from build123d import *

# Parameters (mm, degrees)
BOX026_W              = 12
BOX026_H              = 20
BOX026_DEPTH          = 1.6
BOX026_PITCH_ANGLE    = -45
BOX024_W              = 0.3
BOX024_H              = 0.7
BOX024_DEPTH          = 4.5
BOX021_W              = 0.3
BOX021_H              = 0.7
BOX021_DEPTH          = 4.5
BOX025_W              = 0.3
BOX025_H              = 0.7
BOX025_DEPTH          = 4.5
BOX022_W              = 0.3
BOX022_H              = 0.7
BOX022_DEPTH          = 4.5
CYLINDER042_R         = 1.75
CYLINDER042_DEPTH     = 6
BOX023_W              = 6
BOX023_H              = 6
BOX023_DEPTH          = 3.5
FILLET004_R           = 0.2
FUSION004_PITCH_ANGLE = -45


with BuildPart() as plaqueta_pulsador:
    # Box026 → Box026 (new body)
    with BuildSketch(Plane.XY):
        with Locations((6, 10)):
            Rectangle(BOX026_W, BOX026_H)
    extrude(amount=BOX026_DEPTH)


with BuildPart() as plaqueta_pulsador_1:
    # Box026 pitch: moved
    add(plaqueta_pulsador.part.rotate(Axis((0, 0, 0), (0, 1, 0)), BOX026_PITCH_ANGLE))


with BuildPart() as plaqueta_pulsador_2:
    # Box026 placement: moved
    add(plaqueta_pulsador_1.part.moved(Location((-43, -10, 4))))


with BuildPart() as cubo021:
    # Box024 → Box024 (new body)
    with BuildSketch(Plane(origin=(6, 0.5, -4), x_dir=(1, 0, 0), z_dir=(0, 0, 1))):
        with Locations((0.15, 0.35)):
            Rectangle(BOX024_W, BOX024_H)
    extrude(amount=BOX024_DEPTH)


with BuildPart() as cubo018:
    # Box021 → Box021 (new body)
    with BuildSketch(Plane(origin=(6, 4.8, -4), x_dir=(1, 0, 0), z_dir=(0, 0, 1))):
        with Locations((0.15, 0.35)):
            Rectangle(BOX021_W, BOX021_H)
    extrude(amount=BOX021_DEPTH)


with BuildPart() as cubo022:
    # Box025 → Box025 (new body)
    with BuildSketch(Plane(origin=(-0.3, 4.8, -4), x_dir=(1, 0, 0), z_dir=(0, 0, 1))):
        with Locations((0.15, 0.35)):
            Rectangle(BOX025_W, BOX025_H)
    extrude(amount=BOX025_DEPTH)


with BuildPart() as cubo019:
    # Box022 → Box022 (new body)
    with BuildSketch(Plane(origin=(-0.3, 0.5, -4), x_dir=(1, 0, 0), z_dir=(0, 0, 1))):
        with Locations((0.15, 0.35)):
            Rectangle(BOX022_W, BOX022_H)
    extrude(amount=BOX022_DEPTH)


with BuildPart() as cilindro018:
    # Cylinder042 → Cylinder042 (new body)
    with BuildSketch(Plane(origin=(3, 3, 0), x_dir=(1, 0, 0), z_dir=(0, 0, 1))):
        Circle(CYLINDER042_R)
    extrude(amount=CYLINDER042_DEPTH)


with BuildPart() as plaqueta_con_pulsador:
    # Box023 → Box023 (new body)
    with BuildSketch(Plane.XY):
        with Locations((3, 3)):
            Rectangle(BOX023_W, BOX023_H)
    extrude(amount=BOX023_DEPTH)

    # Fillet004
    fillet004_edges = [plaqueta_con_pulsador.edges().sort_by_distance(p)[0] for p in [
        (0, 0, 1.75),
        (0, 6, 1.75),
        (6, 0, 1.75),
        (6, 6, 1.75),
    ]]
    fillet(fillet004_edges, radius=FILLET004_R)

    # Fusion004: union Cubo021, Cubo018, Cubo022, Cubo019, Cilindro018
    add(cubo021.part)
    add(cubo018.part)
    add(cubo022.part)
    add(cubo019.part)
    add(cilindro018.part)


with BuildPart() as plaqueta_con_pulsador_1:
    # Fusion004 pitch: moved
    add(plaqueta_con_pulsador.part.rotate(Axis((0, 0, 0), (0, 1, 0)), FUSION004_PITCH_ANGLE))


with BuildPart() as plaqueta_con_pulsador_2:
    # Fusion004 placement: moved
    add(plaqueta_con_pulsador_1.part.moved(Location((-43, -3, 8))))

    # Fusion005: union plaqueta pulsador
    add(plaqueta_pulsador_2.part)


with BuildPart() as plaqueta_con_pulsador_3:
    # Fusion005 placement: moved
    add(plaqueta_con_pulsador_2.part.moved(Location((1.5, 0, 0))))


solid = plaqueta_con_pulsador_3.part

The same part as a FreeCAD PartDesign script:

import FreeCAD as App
import Part
import Sketcher

V = App.Vector
Q = App.Units.Quantity


def edges_at(feature, points):
    """Names of the edges that pass closest to the given points."""
    edges = feature.Shape.Edges
    near = lambda p: min(range(len(edges)), key=lambda i: edges[i].distToShape(Part.Vertex(*p))[0])
    return sorted({f"Edge{near(p) + 1}" for p in points})

doc = App.newDocument("Part")
body = doc.addObject("PartDesign::Body", "Body")

sketch1 = doc.addObject("Sketcher::SketchObject", "Sketch")
body.addObject(sketch1)
sketch1.AttachmentSupport = (doc.XY_Plane, [""])
sketch1.MapMode = "FlatFace"
sketch1.addGeometry([
    Part.LineSegment(V(0, 20, 0), V(0, 0, 0)),
    Part.LineSegment(V(0, 0, 0), V(12, 0, 0)),
    Part.LineSegment(V(12, 0, 0), V(12, 20, 0)),
    Part.LineSegment(V(12, 20, 0), V(0, 20, 0)),
], False)
sketch1.addConstraint([
    Sketcher.Constraint("Coincident", 0, 2, 1, 1),
    Sketcher.Constraint("Coincident", 1, 2, 2, 1),
    Sketcher.Constraint("Coincident", 2, 2, 3, 1),
    Sketcher.Constraint("Coincident", 3, 2, 0, 1),
    Sketcher.Constraint("Vertical", 0),
    Sketcher.Constraint("Horizontal", 1),
    Sketcher.Constraint("Vertical", 2),
    Sketcher.Constraint("Horizontal", 3),
    Sketcher.Constraint("Coincident", 0, 2, -1, 1),
    Sketcher.Constraint("DistanceX", 1, 1, 1, 2, Q("12 mm")),
    Sketcher.Constraint("DistanceY", 0, 2, 0, 1, Q("20 mm")),
])
pad1 = doc.addObject("PartDesign::Pad", "Pad")
body.addObject(pad1)
pad1.Profile = sketch1
pad1.Length = 1.6
body2 = doc.addObject("PartDesign::Body", "Body001")
doc.recompute()

body.Placement = App.Placement(V(0, 0, 0), App.Rotation(V(0, 1, 0), 315))
boolean = doc.addObject("PartDesign::Boolean", "Boolean")
body2.addObject(boolean)
boolean.Type = "Fuse"
boolean.addObjects([body])
body3 = doc.addObject("PartDesign::Body", "Body002")
doc.recompute()

body2.Placement = App.Placement(V(-43, -10, 4), App.Rotation(V(0, 0, 1), 0))
boolean2 = doc.addObject("PartDesign::Boolean", "Boolean001")
body3.addObject(boolean2)
boolean2.Type = "Fuse"
boolean2.addObjects([body2])
body4 = doc.addObject("PartDesign::Body", "Body003")

sketch2 = doc.addObject("Sketcher::SketchObject", "Sketch001")
body4.addObject(sketch2)
sketch2.AttachmentSupport = (doc.getObject("XY_Plane003"), [""])
sketch2.MapMode = "FlatFace"
sketch2.AttachmentOffset = App.Placement(V(0, 0, -4), App.Rotation())
sketch2.addGeometry([
    Part.LineSegment(V(6, 1.2, 0), V(6, 0.5, 0)),
    Part.LineSegment(V(6, 0.5, 0), V(6.3, 0.5, 0)),
    Part.LineSegment(V(6.3, 0.5, 0), V(6.3, 1.2, 0)),
    Part.LineSegment(V(6.3, 1.2, 0), V(6, 1.2, 0)),
], False)
sketch2.addConstraint([
    Sketcher.Constraint("Coincident", 0, 2, 1, 1),
    Sketcher.Constraint("Coincident", 1, 2, 2, 1),
    Sketcher.Constraint("Coincident", 2, 2, 3, 1),
    Sketcher.Constraint("Coincident", 3, 2, 0, 1),
    Sketcher.Constraint("Vertical", 0),
    Sketcher.Constraint("Horizontal", 1),
    Sketcher.Constraint("Vertical", 2),
    Sketcher.Constraint("Horizontal", 3),
    Sketcher.Constraint("DistanceX", 1, 1, 1, 2, Q("0.3 mm")),
    Sketcher.Constraint("DistanceY", 0, 2, 0, 1, Q("0.7 mm")),
    Sketcher.Constraint("DistanceX", -1, 1, 0, 2, Q("6 mm")),
    Sketcher.Constraint("DistanceY", -1, 1, 0, 2, Q("0.5 mm")),
])
pad2 = doc.addObject("PartDesign::Pad", "Pad001")
body4.addObject(pad2)
pad2.Profile = sketch2
pad2.Length = 4.5
body5 = doc.addObject("PartDesign::Body", "Body004")

sketch3 = doc.addObject("Sketcher::SketchObject", "Sketch002")
body5.addObject(sketch3)
sketch3.AttachmentSupport = (doc.getObject("XY_Plane004"), [""])
sketch3.MapMode = "FlatFace"
sketch3.AttachmentOffset = App.Placement(V(0, 0, -4), App.Rotation())
sketch3.addGeometry([
    Part.LineSegment(V(6, 5.5, 0), V(6, 4.8, 0)),
    Part.LineSegment(V(6, 4.8, 0), V(6.3, 4.8, 0)),
    Part.LineSegment(V(6.3, 4.8, 0), V(6.3, 5.5, 0)),
    Part.LineSegment(V(6.3, 5.5, 0), V(6, 5.5, 0)),
], False)
sketch3.addConstraint([
    Sketcher.Constraint("Coincident", 0, 2, 1, 1),
    Sketcher.Constraint("Coincident", 1, 2, 2, 1),
    Sketcher.Constraint("Coincident", 2, 2, 3, 1),
    Sketcher.Constraint("Coincident", 3, 2, 0, 1),
    Sketcher.Constraint("Vertical", 0),
    Sketcher.Constraint("Horizontal", 1),
    Sketcher.Constraint("Vertical", 2),
    Sketcher.Constraint("Horizontal", 3),
    Sketcher.Constraint("DistanceX", 1, 1, 1, 2, Q("0.3 mm")),
    Sketcher.Constraint("DistanceY", 0, 2, 0, 1, Q("0.7 mm")),
    Sketcher.Constraint("DistanceX", -1, 1, 0, 2, Q("6 mm")),
    Sketcher.Constraint("DistanceY", -1, 1, 0, 2, Q("4.8 mm")),
])
pad3 = doc.addObject("PartDesign::Pad", "Pad002")
body5.addObject(pad3)
pad3.Profile = sketch3
pad3.Length = 4.5
body6 = doc.addObject("PartDesign::Body", "Body005")

sketch4 = doc.addObject("Sketcher::SketchObject", "Sketch003")
body6.addObject(sketch4)
sketch4.AttachmentSupport = (doc.getObject("XY_Plane005"), [""])
sketch4.MapMode = "FlatFace"
sketch4.AttachmentOffset = App.Placement(V(0, 0, -4), App.Rotation())
sketch4.addGeometry([
    Part.LineSegment(V(-0.3, 5.5, 0), V(-0.3, 4.8, 0)),
    Part.LineSegment(V(-0.3, 4.8, 0), V(0, 4.8, 0)),
    Part.LineSegment(V(0, 4.8, 0), V(0, 5.5, 0)),
    Part.LineSegment(V(0, 5.5, 0), V(-0.3, 5.5, 0)),
], False)
sketch4.addConstraint([
    Sketcher.Constraint("Coincident", 0, 2, 1, 1),
    Sketcher.Constraint("Coincident", 1, 2, 2, 1),
    Sketcher.Constraint("Coincident", 2, 2, 3, 1),
    Sketcher.Constraint("Coincident", 3, 2, 0, 1),
    Sketcher.Constraint("Vertical", 0),
    Sketcher.Constraint("Horizontal", 1),
    Sketcher.Constraint("Vertical", 2),
    Sketcher.Constraint("Horizontal", 3),
    Sketcher.Constraint("PointOnObject", 1, 2, -2),
    Sketcher.Constraint("DistanceX", 1, 1, 1, 2, Q("0.3 mm")),
    Sketcher.Constraint("DistanceY", 0, 2, 0, 1, Q("0.7 mm")),
    Sketcher.Constraint("DistanceY", -1, 1, 0, 2, Q("4.8 mm")),
])
pad4 = doc.addObject("PartDesign::Pad", "Pad003")
body6.addObject(pad4)
pad4.Profile = sketch4
pad4.Length = 4.5
body7 = doc.addObject("PartDesign::Body", "Body006")

sketch5 = doc.addObject("Sketcher::SketchObject", "Sketch004")
body7.addObject(sketch5)
sketch5.AttachmentSupport = (doc.getObject("XY_Plane006"), [""])
sketch5.MapMode = "FlatFace"
sketch5.AttachmentOffset = App.Placement(V(0, 0, -4), App.Rotation())
sketch5.addGeometry([
    Part.LineSegment(V(-0.3, 1.2, 0), V(-0.3, 0.5, 0)),
    Part.LineSegment(V(-0.3, 0.5, 0), V(0, 0.5, 0)),
    Part.LineSegment(V(0, 0.5, 0), V(0, 1.2, 0)),
    Part.LineSegment(V(0, 1.2, 0), V(-0.3, 1.2, 0)),
], False)
sketch5.addConstraint([
    Sketcher.Constraint("Coincident", 0, 2, 1, 1),
    Sketcher.Constraint("Coincident", 1, 2, 2, 1),
    Sketcher.Constraint("Coincident", 2, 2, 3, 1),
    Sketcher.Constraint("Coincident", 3, 2, 0, 1),
    Sketcher.Constraint("Vertical", 0),
    Sketcher.Constraint("Horizontal", 1),
    Sketcher.Constraint("Vertical", 2),
    Sketcher.Constraint("Horizontal", 3),
    Sketcher.Constraint("PointOnObject", 1, 2, -2),
    Sketcher.Constraint("DistanceX", 1, 1, 1, 2, Q("0.3 mm")),
    Sketcher.Constraint("DistanceY", 0, 2, 0, 1, Q("0.7 mm")),
    Sketcher.Constraint("DistanceY", -1, 1, 0, 2, Q("0.5 mm")),
])
pad5 = doc.addObject("PartDesign::Pad", "Pad004")
body7.addObject(pad5)
pad5.Profile = sketch5
pad5.Length = 4.5
body8 = doc.addObject("PartDesign::Body", "Body007")

sketch6 = doc.addObject("Sketcher::SketchObject", "Sketch005")
body8.addObject(sketch6)
sketch6.AttachmentSupport = (doc.getObject("XY_Plane007"), [""])
sketch6.MapMode = "FlatFace"
sketch6.addGeometry(Part.Circle(V(3, 3, 0), V(0, 0, 1), 1.8), False)
sketch6.addConstraint([
    Sketcher.Constraint("Diameter", 0, Q("3.5 mm")),
    Sketcher.Constraint("DistanceX", -1, 1, 0, 3, Q("3 mm")),
    Sketcher.Constraint("DistanceY", -1, 1, 0, 3, Q("3 mm")),
])
pad6 = doc.addObject("PartDesign::Pad", "Pad005")
body8.addObject(pad6)
pad6.Profile = sketch6
pad6.Length = 6
body9 = doc.addObject("PartDesign::Body", "Body008")

sketch7 = doc.addObject("Sketcher::SketchObject", "Sketch006")
body9.addObject(sketch7)
sketch7.AttachmentSupport = (doc.getObject("XY_Plane008"), [""])
sketch7.MapMode = "FlatFace"
sketch7.addGeometry([
    Part.LineSegment(V(0, 6, 0), V(0, 0, 0)),
    Part.LineSegment(V(0, 0, 0), V(6, 0, 0)),
    Part.LineSegment(V(6, 0, 0), V(6, 6, 0)),
    Part.LineSegment(V(6, 6, 0), V(0, 6, 0)),
], False)
sketch7.addConstraint([
    Sketcher.Constraint("Coincident", 0, 2, 1, 1),
    Sketcher.Constraint("Coincident", 1, 2, 2, 1),
    Sketcher.Constraint("Coincident", 2, 2, 3, 1),
    Sketcher.Constraint("Coincident", 3, 2, 0, 1),
    Sketcher.Constraint("Vertical", 0),
    Sketcher.Constraint("Horizontal", 1),
    Sketcher.Constraint("Vertical", 2),
    Sketcher.Constraint("Horizontal", 3),
    Sketcher.Constraint("Coincident", 0, 2, -1, 1),
    Sketcher.Constraint("Equal", 3, 0),
    Sketcher.Constraint("DistanceX", 1, 1, 1, 2, Q("6 mm")),
])
pad7 = doc.addObject("PartDesign::Pad", "Pad006")
body9.addObject(pad7)
pad7.Profile = sketch7
pad7.Length = 3.5
doc.recompute()

fillet = doc.addObject("PartDesign::Fillet", "Fillet")
body9.addObject(fillet)
fillet.Base = (pad7, edges_at(pad7, [
    (0, 0, 1.75),
    (0, 6, 1.75),
    (6, 0, 1.75),
    (6, 6, 1.75),
]))
fillet.Radius = 0.2
doc.recompute()

boolean3 = doc.addObject("PartDesign::Boolean", "Boolean002")
body9.addObject(boolean3)
boolean3.Type = "Fuse"
boolean3.addObjects([body4])
doc.recompute()

boolean4 = doc.addObject("PartDesign::Boolean", "Boolean003")
body9.addObject(boolean4)
boolean4.Type = "Fuse"
boolean4.addObjects([body5])
doc.recompute()

boolean5 = doc.addObject("PartDesign::Boolean", "Boolean004")
body9.addObject(boolean5)
boolean5.Type = "Fuse"
boolean5.addObjects([body6])
doc.recompute()

boolean6 = doc.addObject("PartDesign::Boolean", "Boolean005")
body9.addObject(boolean6)
boolean6.Type = "Fuse"
boolean6.addObjects([body7])
doc.recompute()

boolean7 = doc.addObject("PartDesign::Boolean", "Boolean006")
body9.addObject(boolean7)
boolean7.Type = "Fuse"
boolean7.addObjects([body8])
body10 = doc.addObject("PartDesign::Body", "Body009")
doc.recompute()

body9.Placement = App.Placement(V(0, 0, 0), App.Rotation(V(0, 1, 0), 315))
boolean8 = doc.addObject("PartDesign::Boolean", "Boolean007")
body10.addObject(boolean8)
boolean8.Type = "Fuse"
boolean8.addObjects([body9])
body11 = doc.addObject("PartDesign::Body", "Body010")
doc.recompute()

body10.Placement = App.Placement(V(-43, -3, 8), App.Rotation(V(0, 0, 1), 0))
boolean9 = doc.addObject("PartDesign::Boolean", "Boolean008")
body11.addObject(boolean9)
boolean9.Type = "Fuse"
boolean9.addObjects([body10])
doc.recompute()

boolean10 = doc.addObject("PartDesign::Boolean", "Boolean009")
body11.addObject(boolean10)
boolean10.Type = "Fuse"
boolean10.addObjects([body3])
body12 = doc.addObject("PartDesign::Body", "Body011")
doc.recompute()

body11.Placement = App.Placement(V(1.5, 0, 0), App.Rotation(V(0, 0, 1), 0))
boolean11 = doc.addObject("PartDesign::Boolean", "Boolean010")
body12.addObject(boolean11)
boolean11.Type = "Fuse"
boolean11.addObjects([body11])

doc.recompute()
